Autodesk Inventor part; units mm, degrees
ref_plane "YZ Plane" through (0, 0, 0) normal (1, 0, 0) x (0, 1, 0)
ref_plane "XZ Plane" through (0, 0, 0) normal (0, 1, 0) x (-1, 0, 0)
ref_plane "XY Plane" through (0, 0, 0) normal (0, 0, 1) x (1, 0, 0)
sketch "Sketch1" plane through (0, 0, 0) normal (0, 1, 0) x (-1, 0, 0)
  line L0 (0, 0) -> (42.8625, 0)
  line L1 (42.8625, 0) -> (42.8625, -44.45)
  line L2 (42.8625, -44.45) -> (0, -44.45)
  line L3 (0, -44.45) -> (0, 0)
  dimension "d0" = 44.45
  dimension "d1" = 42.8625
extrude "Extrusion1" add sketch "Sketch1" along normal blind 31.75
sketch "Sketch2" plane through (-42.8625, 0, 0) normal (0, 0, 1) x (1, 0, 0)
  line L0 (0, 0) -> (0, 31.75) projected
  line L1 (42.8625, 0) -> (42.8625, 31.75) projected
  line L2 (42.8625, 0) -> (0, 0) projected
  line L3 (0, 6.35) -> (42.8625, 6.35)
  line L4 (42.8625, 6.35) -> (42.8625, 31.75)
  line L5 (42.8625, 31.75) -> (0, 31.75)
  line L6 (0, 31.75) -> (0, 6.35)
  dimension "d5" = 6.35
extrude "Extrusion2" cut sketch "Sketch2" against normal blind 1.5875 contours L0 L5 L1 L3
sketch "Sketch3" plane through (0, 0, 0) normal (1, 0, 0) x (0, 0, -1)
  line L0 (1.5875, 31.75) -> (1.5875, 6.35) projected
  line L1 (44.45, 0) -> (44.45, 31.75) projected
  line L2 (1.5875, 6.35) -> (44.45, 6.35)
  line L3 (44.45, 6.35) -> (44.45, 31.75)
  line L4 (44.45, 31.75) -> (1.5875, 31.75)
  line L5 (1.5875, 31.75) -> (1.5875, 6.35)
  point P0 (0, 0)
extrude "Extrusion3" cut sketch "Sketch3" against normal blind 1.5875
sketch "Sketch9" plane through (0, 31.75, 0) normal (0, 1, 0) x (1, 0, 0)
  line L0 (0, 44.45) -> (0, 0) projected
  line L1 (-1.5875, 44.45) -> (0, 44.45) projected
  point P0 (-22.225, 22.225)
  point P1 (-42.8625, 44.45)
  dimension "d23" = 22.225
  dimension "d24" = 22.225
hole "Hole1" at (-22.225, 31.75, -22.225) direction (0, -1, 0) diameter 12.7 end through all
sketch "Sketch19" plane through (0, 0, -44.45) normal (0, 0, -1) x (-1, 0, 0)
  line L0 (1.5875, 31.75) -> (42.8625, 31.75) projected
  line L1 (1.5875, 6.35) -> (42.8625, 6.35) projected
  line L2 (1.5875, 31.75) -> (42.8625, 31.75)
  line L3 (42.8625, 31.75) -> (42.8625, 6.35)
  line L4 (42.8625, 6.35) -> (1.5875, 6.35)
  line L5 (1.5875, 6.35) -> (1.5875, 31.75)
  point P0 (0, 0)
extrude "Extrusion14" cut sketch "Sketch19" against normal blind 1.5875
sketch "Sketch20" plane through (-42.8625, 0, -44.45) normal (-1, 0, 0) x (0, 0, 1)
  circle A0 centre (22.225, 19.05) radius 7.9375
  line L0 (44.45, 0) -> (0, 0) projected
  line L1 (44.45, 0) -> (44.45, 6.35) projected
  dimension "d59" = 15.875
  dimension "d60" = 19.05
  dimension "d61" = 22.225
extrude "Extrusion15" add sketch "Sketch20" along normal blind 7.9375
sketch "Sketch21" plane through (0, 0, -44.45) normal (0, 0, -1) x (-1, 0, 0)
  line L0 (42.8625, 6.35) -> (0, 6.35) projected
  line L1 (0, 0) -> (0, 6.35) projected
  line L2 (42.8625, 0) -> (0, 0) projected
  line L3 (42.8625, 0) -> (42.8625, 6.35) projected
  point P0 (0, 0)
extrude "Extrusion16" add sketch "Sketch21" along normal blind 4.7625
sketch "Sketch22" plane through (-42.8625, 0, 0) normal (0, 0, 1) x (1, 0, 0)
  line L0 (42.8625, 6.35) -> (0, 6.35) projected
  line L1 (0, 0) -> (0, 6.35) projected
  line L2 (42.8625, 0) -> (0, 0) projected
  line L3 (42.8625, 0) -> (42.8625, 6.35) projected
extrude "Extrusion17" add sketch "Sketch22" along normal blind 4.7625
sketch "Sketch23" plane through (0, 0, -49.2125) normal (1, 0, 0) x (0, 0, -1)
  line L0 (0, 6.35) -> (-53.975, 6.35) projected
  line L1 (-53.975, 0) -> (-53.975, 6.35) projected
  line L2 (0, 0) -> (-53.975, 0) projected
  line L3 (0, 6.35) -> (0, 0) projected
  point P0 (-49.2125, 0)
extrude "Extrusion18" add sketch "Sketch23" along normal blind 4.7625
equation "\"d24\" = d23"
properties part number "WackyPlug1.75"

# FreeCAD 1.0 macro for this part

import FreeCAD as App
import Part
import Sketcher

V = App.Vector
Q = App.Units.Quantity


def add_polygon(sketch, points):
    """Adds a closed chain of lines whose ends are joined by coincident constraints."""
    first, n = sketch.GeometryCount, len(points)
    for a, b in zip(points, points[1:] + points[:1]):
        sketch.addGeometry(Part.LineSegment(App.Vector(*a, 0), App.Vector(*b, 0)), False)
    for i in range(n):
        sketch.addConstraint(Sketcher.Constraint("Coincident", first + i, 2, first + (i + 1) % n, 1))

doc = App.newDocument("Part")
body = doc.addObject("PartDesign::Body", "Body")

sketch1 = body.newObject("Sketcher::SketchObject", "Sketch")
sketch1.AttachmentSupport = (doc.getObject("XZ_Plane"), [""])
sketch1.MapMode = "FlatFace"
add_polygon(sketch1, [(-42.8625, 0), (0, 0), (0, -44.45), (-42.8625, -44.45)])
sketch1.addConstraint([
    Sketcher.Constraint("Horizontal", 0),
    Sketcher.Constraint("Vertical", 1),
    Sketcher.Constraint("Horizontal", 2),
    Sketcher.Constraint("Vertical", 3),
    Sketcher.Constraint("Coincident", 0, 2, -1, 1),
    Sketcher.Constraint("DistanceY", 1, 2, 1, 1, Q("1.75 in")),
    Sketcher.Constraint("DistanceX", 0, 1, 0, 2, Q("1.6875 in")),
])
pad1 = body.newObject("PartDesign::Pad", "Pad")
pad1.Profile = sketch1
pad1.Length = Q("1.25 in")
pad1.Reversed = True

sketch2 = body.newObject("Sketcher::SketchObject", "Sketch001")
sketch2.AttachmentSupport = (doc.getObject("XY_Plane"), [""])
sketch2.MapMode = "FlatFace"
add_polygon(sketch2, [(-42.8625, 31.75), (-42.8625, 6.35), (0, 6.35), (0, 31.75)])
sketch2.addConstraint([
    Sketcher.Constraint("Vertical", 0),
    Sketcher.Constraint("Horizontal", 1),
    Sketcher.Constraint("Vertical", 2),
    Sketcher.Constraint("Horizontal", 3),
    Sketcher.Constraint("PointOnObject", 1, 2, -2),
    Sketcher.Constraint("DistanceY", 0, 2, 0, 1, Q("1 in")),
    Sketcher.Constraint("DistanceY", -1, 1, 0, 2, Q("0.25 in")),
    Sketcher.Constraint("DistanceX", 1, 1, 1, 2, Q("1.6875 in")),
])
pocket1 = body.newObject("PartDesign::Pocket", "Pocket")
pocket1.Profile = sketch2
pocket1.Length = Q("0.0625 in")

sketch3 = body.newObject("Sketcher::SketchObject", "Sketch002")
sketch3.AttachmentSupport = (doc.getObject("YZ_Plane"), [""])
sketch3.MapMode = "FlatFace"
add_polygon(sketch3, [(31.75, -44.45), (31.75, -1.5875), (6.35, -1.5875), (6.35, -44.45)])
sketch3.addConstraint([
    Sketcher.Constraint("Vertical", 0),
    Sketcher.Constraint("Horizontal", 1),
    Sketcher.Constraint("Vertical", 2),
    Sketcher.Constraint("Horizontal", 3),
    Sketcher.Constraint("DistanceX", 1, 2, 1, 1, Q("1 in")),
    Sketcher.Constraint("DistanceY", 0, 1, 0, 2, Q("1.6875 in")),
    Sketcher.Constraint("DistanceX", -1, 1, 0, 2, Q("1.25 in")),
    Sketcher.Constraint("DistanceY", 2, 2, -1, 1, Q("1.75 in")),
])
pocket2 = body.newObject("PartDesign::Pocket", "Pocket001")
pocket2.Profile = sketch3
pocket2.Length = Q("0.0625 in")

sketch4 = body.newObject("Sketcher::SketchObject", "Sketch003")
sketch4.AttachmentSupport = (doc.getObject("XZ_Plane"), [""])
sketch4.MapMode = "FlatFace"
sketch4.AttachmentOffset = App.Placement(V(0, 0, -1.25 * 25.4), App.Rotation())
sketch4.addGeometry(Part.Circle(V(-22.225, -22.225, 0), V(0, 0, 1), 6.35), False)
sketch4.addConstraint([
    Sketcher.Constraint("Diameter", 0, Q("0.5 in")),
    Sketcher.Constraint("DistanceX", 0, 3, -1, 1, Q("0.875 in")),
    Sketcher.Constraint("DistanceY", 0, 3, -1, 1, Q("0.875 in")),
])
doc.recompute()
hole = body.newObject("PartDesign::Hole", "Hole")
hole.Profile = sketch4
hole.ThreadType = "None"
hole.Diameter = Q("0.5 in")
hole.DepthType = "ThroughAll"
hole.Reversed = True

sketch5 = body.newObject("Sketcher::SketchObject", "Sketch004")
sketch5.AttachmentSupport = (doc.getObject("XY_Plane"), [""])
sketch5.MapMode = "FlatFace"
sketch5.AttachmentOffset = App.Placement(V(0, 0, -1.75 * 25.4), App.Rotation())
add_polygon(sketch5, [(-42.8625, 31.75), (-1.5875, 31.75), (-1.5875, 6.35), (-42.8625, 6.35)])
sketch5.addConstraint([
    Sketcher.Constraint("Horizontal", 0),
    Sketcher.Constraint("Vertical", 1),
    Sketcher.Constraint("Horizontal", 2),
    Sketcher.Constraint("Vertical", 3),
    Sketcher.Constraint("DistanceY", 1, 2, 1, 1, Q("1 in")),
    Sketcher.Constraint("DistanceX", 0, 1, 0, 2, Q("1.625 in")),
    Sketcher.Constraint("DistanceY", -1, 1, 0, 2, Q("1.25 in")),
    Sketcher.Constraint("DistanceX", 0, 2, -1, 1, Q("0.0625 in")),
])
pocket3 = body.newObject("PartDesign::Pocket", "Pocket002")
pocket3.Profile = sketch5
pocket3.Length = Q("0.0625 in")
pocket3.Reversed = True

sketch6 = body.newObject("Sketcher::SketchObject", "Sketch005")
sketch6.AttachmentSupport = (doc.getObject("YZ_Plane"), [""])
sketch6.MapMode = "FlatFace"
sketch6.AttachmentOffset = App.Placement(V(0, 0, -1.6875 * 25.4), App.Rotation())
sketch6.addGeometry(Part.Circle(V(19.05, -22.225, 0), V(0, 0, 1), 7.9375), False)
sketch6.addConstraint([
    Sketcher.Constraint("Diameter", 0, Q("0.625 in")),
    Sketcher.Constraint("DistanceX", -1, 1, 0, 3, Q("0.75 in")),
    Sketcher.Constraint("DistanceY", 0, 3, -1, 1, Q("0.875 in")),
])
pad2 = body.newObject("PartDesign::Pad", "Pad001")
pad2.Profile = sketch6
pad2.Length = Q("0.3125 in")
pad2.Reversed = True

sketch7 = body.newObject("Sketcher::SketchObject", "Sketch006")
sketch7.AttachmentSupport = (doc.getObject("XY_Plane"), [""])
sketch7.MapMode = "FlatFace"
sketch7.AttachmentOffset = App.Placement(V(0, 0, -1.75 * 25.4), App.Rotation())
add_polygon(sketch7, [(-42.8625, 0), (-42.8625, 6.35), (0, 6.35), (0, 0)])
sketch7.addConstraint([
    Sketcher.Constraint("Vertical", 0),
    Sketcher.Constraint("Horizontal", 1),
    Sketcher.Constraint("Vertical", 2),
    Sketcher.Constraint("Horizontal", 3),
    Sketcher.Constraint("Coincident", 2, 2, -1, 1),
    Sketcher.Constraint("DistanceY", 0, 1, 0, 2, Q("0.25 in")),
    Sketcher.Constraint("DistanceX", 1, 1, 1, 2, Q("1.6875 in")),
])
pad3 = body.newObject("PartDesign::Pad", "Pad002")
pad3.Profile = sketch7
pad3.Length = Q("0.1875 in")
pad3.Reversed = True

sketch8 = body.newObject("Sketcher::SketchObject", "Sketch007")
sketch8.AttachmentSupport = (doc.getObject("XY_Plane"), [""])
sketch8.MapMode = "FlatFace"
add_polygon(sketch8, [(0, 0), (0, 6.35), (-42.8625, 6.35), (-42.8625, 0)])
sketch8.addConstraint([
    Sketcher.Constraint("Vertical", 0),
    Sketcher.Constraint("Horizontal", 1),
    Sketcher.Constraint("Vertical", 2),
    Sketcher.Constraint("Horizontal", 3),
    Sketcher.Constraint("Coincident", 3, 2, -1, 1),
    Sketcher.Constraint("DistanceY", 0, 1, 0, 2, Q("0.25 in")),
    Sketcher.Constraint("DistanceX", 1, 2, 1, 1, Q("1.6875 in")),
])
pad4 = body.newObject("PartDesign::Pad", "Pad003")
pad4.Profile = sketch8
pad4.Length = Q("0.1875 in")

sketch9 = body.newObject("Sketcher::SketchObject", "Sketch008")
sketch9.AttachmentSupport = (doc.getObject("YZ_Plane"), [""])
sketch9.MapMode = "FlatFace"
add_polygon(sketch9, [(0, -49.2125), (6.35, -49.2125), (6.35, 4.7625), (0, 4.7625)])
sketch9.addConstraint([
    Sketcher.Constraint("Horizontal", 0),
    Sketcher.Constraint("Vertical", 1),
    Sketcher.Constraint("Horizontal", 2),
    Sketcher.Constraint("Vertical", 3),
    Sketcher.Constraint("PointOnObject", 2, 2, -2),
    Sketcher.Constraint("DistanceX", 0, 1, 0, 2, Q("0.25 in")),
    Sketcher.Constraint("DistanceY", 1, 1, 1, 2, Q("2.125 in")),
    Sketcher.Constraint("DistanceY", 0, 2, -1, 1, Q("1.9375 in")),
])
pad5 = body.newObject("PartDesign::Pad", "Pad004")
pad5.Profile = sketch9
pad5.Length = Q("0.1875 in")

doc.recompute()
